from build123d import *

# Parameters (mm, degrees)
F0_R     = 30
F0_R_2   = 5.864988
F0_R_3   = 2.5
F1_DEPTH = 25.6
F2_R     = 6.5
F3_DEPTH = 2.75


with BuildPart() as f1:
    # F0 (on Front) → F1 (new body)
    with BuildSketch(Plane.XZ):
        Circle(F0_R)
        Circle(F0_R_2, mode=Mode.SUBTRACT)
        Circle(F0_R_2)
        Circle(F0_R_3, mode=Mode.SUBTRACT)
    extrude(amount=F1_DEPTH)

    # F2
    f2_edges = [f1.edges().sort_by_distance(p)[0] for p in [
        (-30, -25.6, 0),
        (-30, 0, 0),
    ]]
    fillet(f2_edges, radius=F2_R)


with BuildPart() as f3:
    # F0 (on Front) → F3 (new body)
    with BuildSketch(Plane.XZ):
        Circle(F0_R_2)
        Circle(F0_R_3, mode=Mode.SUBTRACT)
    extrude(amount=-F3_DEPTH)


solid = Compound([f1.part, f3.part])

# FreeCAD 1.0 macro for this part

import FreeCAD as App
import Part
import Sketcher

V = App.Vector
Q = App.Units.Quantity


def edges_at(feature, points):
    """Names of the edges that pass closest to the given points."""
    edges = feature.Shape.Edges
    near = lambda p: min(range(len(edges)), key=lambda i: edges[i].distToShape(Part.Vertex(*p))[0])
    return sorted({f"Edge{near(p) + 1}" for p in points})

doc = App.newDocument("Part")
params = doc.addObject("Spreadsheet::Sheet", "Params")
for row, (alias, value) in enumerate([
    ("sketch1_diameter", "60 mm"),
    ("sketch1_diameter2", "5 mm"),
    ("pad1_length", "25.6 mm"),
    ("fillet_radius", "6.5 mm"),
    ("sketch2_diameter", "5 mm"),
    ("pad2_length", "2.75 mm"),
], start=1):
    params.set(f"A{row}", alias)
    params.set(f"B{row}", "=" + value)
    params.setAlias(f"B{row}", alias)

body = doc.addObject("PartDesign::Body", "Body")

sketch1 = doc.addObject("Sketcher::SketchObject", "Sketch")
body.addObject(sketch1)
sketch1.AttachmentSupport = (doc.XZ_Plane, [""])
sketch1.MapMode = "FlatFace"
sketch1.addGeometry(Part.Circle(V(0, 0, 0), V(0, 0, 1), 30), False)
sketch1.addGeometry(Part.Circle(V(0, 0, 0), V(0, 0, 1), 2.5), False)
sketch1.addConstraint(Sketcher.Constraint("Coincident", 0, 3, -1, 1))
sketch1.addConstraint(Sketcher.Constraint("Coincident", 1, 3, -1, 1))
sketch1.addConstraint(Sketcher.Constraint("Diameter", 0, Q("60 mm")))
sketch1.addConstraint(Sketcher.Constraint("Diameter", 1, Q("5 mm")))
sketch1.setExpression("Constraints[2]", "Params.sketch1_diameter")
sketch1.setExpression("Constraints[3]", "Params.sketch1_diameter2")
pad1 = doc.addObject("PartDesign::Pad", "Pad")
body.addObject(pad1)
pad1.Profile = sketch1
pad1.setExpression("Length", "Params.pad1_length")
doc.recompute()

fillet = doc.addObject("PartDesign::Fillet", "Fillet")
body.addObject(fillet)
fillet.Base = (pad1, edges_at(pad1, [(-30, -25.6, 0), (-30, 0, 0)]))
fillet.setExpression("Radius", "Params.fillet_radius")
body2 = doc.addObject("PartDesign::Body", "Body001")

sketch2 = doc.addObject("Sketcher::SketchObject", "Sketch001")
body2.addObject(sketch2)
sketch2.AttachmentSupport = (doc.getObject("XZ_Plane001"), [""])
sketch2.MapMode = "FlatFace"
sketch2.addGeometry(Part.Circle(V(0, 0, 0), V(0, 0, 1), 5.9), False)
sketch2.addGeometry(Part.Circle(V(0, 0, 0), V(0, 0, 1), 2.5), False)
sketch2.addConstraint(Sketcher.Constraint("Coincident", 0, 3, -1, 1))
sketch2.addConstraint(Sketcher.Constraint("Coincident", 1, 3, -1, 1))
sketch2.addConstraint(Sketcher.Constraint("Diameter", 1, Q("5 mm")))
sketch2.addConstraint(Sketcher.Constraint("Diameter", 0, Q("11.729976 mm")))
sketch2.setExpression("Constraints[2]", "Params.sketch2_diameter")
pad2 = doc.addObject("PartDesign::Pad", "Pad001")
body2.addObject(pad2)
pad2.Profile = sketch2
pad2.setExpression("Length", "Params.pad2_length")
pad2.Reversed = True

doc.recompute()
